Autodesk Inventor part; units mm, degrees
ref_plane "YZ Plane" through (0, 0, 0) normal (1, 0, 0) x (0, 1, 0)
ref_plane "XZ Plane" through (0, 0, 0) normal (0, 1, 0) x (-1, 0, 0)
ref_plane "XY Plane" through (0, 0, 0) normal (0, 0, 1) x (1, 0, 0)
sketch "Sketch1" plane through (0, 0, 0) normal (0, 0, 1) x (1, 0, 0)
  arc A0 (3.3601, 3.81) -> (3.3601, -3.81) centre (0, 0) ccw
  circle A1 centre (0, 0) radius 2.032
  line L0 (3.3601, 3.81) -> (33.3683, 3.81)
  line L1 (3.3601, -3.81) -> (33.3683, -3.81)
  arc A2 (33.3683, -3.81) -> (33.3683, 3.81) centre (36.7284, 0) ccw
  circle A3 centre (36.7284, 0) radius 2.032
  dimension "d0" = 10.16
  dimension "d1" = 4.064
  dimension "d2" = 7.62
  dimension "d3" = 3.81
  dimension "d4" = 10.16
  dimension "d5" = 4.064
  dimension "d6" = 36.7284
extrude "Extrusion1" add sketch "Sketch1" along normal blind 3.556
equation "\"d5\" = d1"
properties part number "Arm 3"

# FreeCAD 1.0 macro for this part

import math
import FreeCAD as App
import Part
import Sketcher
from FreeCAD import Vector
Q = App.Units.Quantity

doc = App.newDocument("Part")
body = doc.addObject("PartDesign::Body", "Body")

sketch1 = body.newObject("Sketcher::SketchObject", "Sketch")
sketch1.AttachmentSupport = (doc.getObject("XY_Plane"), [""])
sketch1.MapMode = "FlatFace"
sketch1.addGeometry(Part.LineSegment(Vector(33.3683, 3.81, 0), Vector(3.3601, 3.81, 0)), False)
sketch1.addGeometry(Part.ArcOfCircle(Part.Circle(Vector(0, 0, 0), Vector(0, 0, 1), 5.079997), math.radians(48.590413), math.radians(311.409587)), False)
sketch1.addGeometry(Part.LineSegment(Vector(3.3601, -3.81, 0), Vector(33.3683, -3.81, 0)), False)
sketch1.addGeometry(Part.ArcOfCircle(Part.Circle(Vector(36.7284, 0, 0), Vector(0, 0, 1), 5.079997), math.radians(-131.409587), math.radians(131.409587)), False)
sketch1.addGeometry(Part.Circle(Vector(0, 0, 0), Vector(0, 0, 1), 2.032), False)
sketch1.addGeometry(Part.Circle(Vector(36.7284, 0, 0), Vector(0, 0, 1), 2.032), False)
sketch1.addConstraint(Sketcher.Constraint("Coincident", 0, 2, 1, 1))
sketch1.addConstraint(Sketcher.Constraint("Coincident", 1, 2, 2, 1))
sketch1.addConstraint(Sketcher.Constraint("Coincident", 2, 2, 3, 1))
sketch1.addConstraint(Sketcher.Constraint("Coincident", 3, 2, 0, 1))
sketch1.addConstraint(Sketcher.Constraint("Horizontal", 0))
sketch1.addConstraint(Sketcher.Constraint("Horizontal", 2))
sketch1.addConstraint(Sketcher.Constraint("Coincident", 1, 3, -1, 1))
sketch1.addConstraint(Sketcher.Constraint("Coincident", 4, 3, -1, 1))
sketch1.addConstraint(Sketcher.Constraint("Coincident", 5, 3, 3, 3))
sketch1.addConstraint(Sketcher.Constraint("Equal", 1, 3))
sketch1.addConstraint(Sketcher.Constraint("Equal", 4, 5))
sketch1.addConstraint(Sketcher.Constraint("Symmetric", 2, 2, 3, 2, -1))
sketch1.addConstraint(Sketcher.Constraint("Radius", 1, Q("0.2 in")))
sketch1.addConstraint(Sketcher.Constraint("Diameter", 4, Q("0.16 in")))
sketch1.addConstraint(Sketcher.Constraint("DistanceY", 1, 2, 0, 2, Q("0.3 in")))
sketch1.addConstraint(Sketcher.Constraint("DistanceX", -1, 1, 3, 3, Q("1.446 in")))
pad1 = body.newObject("PartDesign::Pad", "Pad")
pad1.Profile = sketch1
pad1.Length = Q("0.14 in")

doc.recompute()
